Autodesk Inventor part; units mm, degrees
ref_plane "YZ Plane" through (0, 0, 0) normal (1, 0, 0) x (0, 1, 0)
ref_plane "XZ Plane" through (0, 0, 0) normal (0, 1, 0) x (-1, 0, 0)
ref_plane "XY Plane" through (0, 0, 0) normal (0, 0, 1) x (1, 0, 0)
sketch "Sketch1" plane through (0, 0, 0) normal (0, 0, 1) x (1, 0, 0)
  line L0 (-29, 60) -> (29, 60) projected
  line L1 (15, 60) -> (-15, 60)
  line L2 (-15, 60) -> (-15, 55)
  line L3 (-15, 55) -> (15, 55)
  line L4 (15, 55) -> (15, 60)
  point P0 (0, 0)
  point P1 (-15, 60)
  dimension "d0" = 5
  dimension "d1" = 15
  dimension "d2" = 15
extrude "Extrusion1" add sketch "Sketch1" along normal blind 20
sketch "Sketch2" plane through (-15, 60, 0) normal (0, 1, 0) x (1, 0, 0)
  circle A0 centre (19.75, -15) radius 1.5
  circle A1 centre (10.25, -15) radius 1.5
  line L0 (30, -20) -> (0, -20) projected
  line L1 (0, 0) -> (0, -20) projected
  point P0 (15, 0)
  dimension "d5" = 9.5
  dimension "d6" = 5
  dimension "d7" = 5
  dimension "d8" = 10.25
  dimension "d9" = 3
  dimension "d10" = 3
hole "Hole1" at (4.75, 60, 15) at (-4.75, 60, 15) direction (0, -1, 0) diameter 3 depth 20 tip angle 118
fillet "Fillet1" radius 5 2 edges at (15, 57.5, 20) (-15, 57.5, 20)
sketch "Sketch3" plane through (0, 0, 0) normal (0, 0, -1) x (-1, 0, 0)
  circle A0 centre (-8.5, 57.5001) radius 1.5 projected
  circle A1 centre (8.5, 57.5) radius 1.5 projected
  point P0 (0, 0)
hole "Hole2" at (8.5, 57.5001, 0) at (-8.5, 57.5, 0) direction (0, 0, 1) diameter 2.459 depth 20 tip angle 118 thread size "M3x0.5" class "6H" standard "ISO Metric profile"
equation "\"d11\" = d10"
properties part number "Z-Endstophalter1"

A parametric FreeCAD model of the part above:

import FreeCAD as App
import Part
import Sketcher


def edges_at(feature, points):
    """Names of the edges that pass closest to the given points."""
    edges = feature.Shape.Edges
    near = lambda p: min(range(len(edges)), key=lambda i: edges[i].distToShape(Part.Vertex(*p))[0])
    return sorted({f"Edge{near(p) + 1}" for p in points})


def add_polygon(sketch, points):
    """Adds a closed chain of lines whose ends are joined by coincident constraints."""
    first, n = sketch.GeometryCount, len(points)
    for a, b in zip(points, points[1:] + points[:1]):
        sketch.addGeometry(Part.LineSegment(App.Vector(*a, 0), App.Vector(*b, 0)), False)
    for i in range(n):
        sketch.addConstraint(Sketcher.Constraint("Coincident", first + i, 2, first + (i + 1) % n, 1))

doc = App.newDocument("Part")
body = doc.addObject("PartDesign::Body", "Body")

# Sketch on XY plane
sketch1 = body.newObject("Sketcher::SketchObject", "Sketch")
sketch1.AttachmentSupport = (doc.getObject("XY_Plane"), [""])
sketch1.MapMode = "FlatFace"
add_polygon(sketch1, [(15, 60), (-15, 60), (-15, 55), (15, 55)])  # lines 0-3
sketch1.addConstraint([
    Sketcher.Constraint("Horizontal", 0),
    Sketcher.Constraint("Vertical", 1),
    Sketcher.Constraint("Horizontal", 2),
    Sketcher.Constraint("Vertical", 3),
    Sketcher.Constraint("DistanceY", 1, 2, 1, 1, 5.0),
    Sketcher.Constraint("DistanceX", 0, 2, -1, 1, 15.0),
    Sketcher.Constraint("DistanceX", -1, 1, 2, 2, 15.0),
    Sketcher.Constraint("DistanceY", -1, 1, 0, 2, 60.0),
])
pad1 = body.newObject("PartDesign::Pad", "Pad")
pad1.Profile = sketch1
pad1.Length = 20

# Sketch on XZ plane
sketch2 = body.newObject("Sketcher::SketchObject", "Sketch001")
sketch2.AttachmentSupport = (doc.getObject("XZ_Plane"), [""])
sketch2.MapMode = "FlatFace"
sketch2.AttachmentOffset = App.Placement(App.Vector(0, 0, -60), App.Rotation())
sketch2.addGeometry([
    Part.Circle(App.Vector(4.8, 15, 0), App.Vector(0, 0, 1), 1.5),
    Part.Circle(App.Vector(-4.8, 15, 0), App.Vector(0, 0, 1), 1.5),
], False)
sketch2.addConstraint([
    Sketcher.Constraint("Equal", 0, 1),
    Sketcher.Constraint("Symmetric", 0, 3, 1, 3, -2),
    Sketcher.Constraint("Diameter", 0, 3.0),
    Sketcher.Constraint("DistanceY", -1, 1, 0, 3, 15.0),
    Sketcher.Constraint("DistanceX", 1, 3, 0, 3, 9.5),
])
doc.recompute()
hole = body.newObject("PartDesign::Hole", "Hole")
hole.Profile = sketch2
hole.ThreadType = "None"
hole.Diameter = 3
hole.DepthType = "Dimension"
hole.Depth = 20
hole.DrillPoint = "Angled"
hole.DrillPointAngle = 118
hole.Reversed = True
doc.recompute()

fillet = body.newObject("PartDesign::Fillet", "Fillet")
fillet.Base = (hole, edges_at(hole, [(15, 57.5, 20), (-15, 57.5, 20)]))
fillet.Radius = 5

# Sketch on XY plane
sketch3 = body.newObject("Sketcher::SketchObject", "Sketch002")
sketch3.AttachmentSupport = (doc.getObject("XY_Plane"), [""])
sketch3.MapMode = "FlatFace"
sketch3.addGeometry([
    Part.Circle(App.Vector(8.5, 57.5, 0), App.Vector(0, 0, 1), 1.2),
    Part.Circle(App.Vector(-8.5, 57.5, 0), App.Vector(0, 0, 1), 1.2),
], False)
sketch3.addConstraint([
    Sketcher.Constraint("Equal", 0, 1),
    Sketcher.Constraint("Symmetric", 0, 3, 1, 3, -2),
    Sketcher.Constraint("Diameter", 0, 2.459),
    Sketcher.Constraint("DistanceX", 1, 3, 0, 3, 17.0),
    Sketcher.Constraint("DistanceY", -1, 1, 0, 3, 57.5),
])
doc.recompute()
hole2 = body.newObject("PartDesign::Hole", "Hole001")
hole2.Profile = sketch3
hole2.ThreadType = "None"
hole2.Diameter = 2.459
hole2.DepthType = "Dimension"
hole2.Depth = 20
hole2.DrillPoint = "Angled"
hole2.DrillPointAngle = 118
hole2.Reversed = True

doc.recompute()
